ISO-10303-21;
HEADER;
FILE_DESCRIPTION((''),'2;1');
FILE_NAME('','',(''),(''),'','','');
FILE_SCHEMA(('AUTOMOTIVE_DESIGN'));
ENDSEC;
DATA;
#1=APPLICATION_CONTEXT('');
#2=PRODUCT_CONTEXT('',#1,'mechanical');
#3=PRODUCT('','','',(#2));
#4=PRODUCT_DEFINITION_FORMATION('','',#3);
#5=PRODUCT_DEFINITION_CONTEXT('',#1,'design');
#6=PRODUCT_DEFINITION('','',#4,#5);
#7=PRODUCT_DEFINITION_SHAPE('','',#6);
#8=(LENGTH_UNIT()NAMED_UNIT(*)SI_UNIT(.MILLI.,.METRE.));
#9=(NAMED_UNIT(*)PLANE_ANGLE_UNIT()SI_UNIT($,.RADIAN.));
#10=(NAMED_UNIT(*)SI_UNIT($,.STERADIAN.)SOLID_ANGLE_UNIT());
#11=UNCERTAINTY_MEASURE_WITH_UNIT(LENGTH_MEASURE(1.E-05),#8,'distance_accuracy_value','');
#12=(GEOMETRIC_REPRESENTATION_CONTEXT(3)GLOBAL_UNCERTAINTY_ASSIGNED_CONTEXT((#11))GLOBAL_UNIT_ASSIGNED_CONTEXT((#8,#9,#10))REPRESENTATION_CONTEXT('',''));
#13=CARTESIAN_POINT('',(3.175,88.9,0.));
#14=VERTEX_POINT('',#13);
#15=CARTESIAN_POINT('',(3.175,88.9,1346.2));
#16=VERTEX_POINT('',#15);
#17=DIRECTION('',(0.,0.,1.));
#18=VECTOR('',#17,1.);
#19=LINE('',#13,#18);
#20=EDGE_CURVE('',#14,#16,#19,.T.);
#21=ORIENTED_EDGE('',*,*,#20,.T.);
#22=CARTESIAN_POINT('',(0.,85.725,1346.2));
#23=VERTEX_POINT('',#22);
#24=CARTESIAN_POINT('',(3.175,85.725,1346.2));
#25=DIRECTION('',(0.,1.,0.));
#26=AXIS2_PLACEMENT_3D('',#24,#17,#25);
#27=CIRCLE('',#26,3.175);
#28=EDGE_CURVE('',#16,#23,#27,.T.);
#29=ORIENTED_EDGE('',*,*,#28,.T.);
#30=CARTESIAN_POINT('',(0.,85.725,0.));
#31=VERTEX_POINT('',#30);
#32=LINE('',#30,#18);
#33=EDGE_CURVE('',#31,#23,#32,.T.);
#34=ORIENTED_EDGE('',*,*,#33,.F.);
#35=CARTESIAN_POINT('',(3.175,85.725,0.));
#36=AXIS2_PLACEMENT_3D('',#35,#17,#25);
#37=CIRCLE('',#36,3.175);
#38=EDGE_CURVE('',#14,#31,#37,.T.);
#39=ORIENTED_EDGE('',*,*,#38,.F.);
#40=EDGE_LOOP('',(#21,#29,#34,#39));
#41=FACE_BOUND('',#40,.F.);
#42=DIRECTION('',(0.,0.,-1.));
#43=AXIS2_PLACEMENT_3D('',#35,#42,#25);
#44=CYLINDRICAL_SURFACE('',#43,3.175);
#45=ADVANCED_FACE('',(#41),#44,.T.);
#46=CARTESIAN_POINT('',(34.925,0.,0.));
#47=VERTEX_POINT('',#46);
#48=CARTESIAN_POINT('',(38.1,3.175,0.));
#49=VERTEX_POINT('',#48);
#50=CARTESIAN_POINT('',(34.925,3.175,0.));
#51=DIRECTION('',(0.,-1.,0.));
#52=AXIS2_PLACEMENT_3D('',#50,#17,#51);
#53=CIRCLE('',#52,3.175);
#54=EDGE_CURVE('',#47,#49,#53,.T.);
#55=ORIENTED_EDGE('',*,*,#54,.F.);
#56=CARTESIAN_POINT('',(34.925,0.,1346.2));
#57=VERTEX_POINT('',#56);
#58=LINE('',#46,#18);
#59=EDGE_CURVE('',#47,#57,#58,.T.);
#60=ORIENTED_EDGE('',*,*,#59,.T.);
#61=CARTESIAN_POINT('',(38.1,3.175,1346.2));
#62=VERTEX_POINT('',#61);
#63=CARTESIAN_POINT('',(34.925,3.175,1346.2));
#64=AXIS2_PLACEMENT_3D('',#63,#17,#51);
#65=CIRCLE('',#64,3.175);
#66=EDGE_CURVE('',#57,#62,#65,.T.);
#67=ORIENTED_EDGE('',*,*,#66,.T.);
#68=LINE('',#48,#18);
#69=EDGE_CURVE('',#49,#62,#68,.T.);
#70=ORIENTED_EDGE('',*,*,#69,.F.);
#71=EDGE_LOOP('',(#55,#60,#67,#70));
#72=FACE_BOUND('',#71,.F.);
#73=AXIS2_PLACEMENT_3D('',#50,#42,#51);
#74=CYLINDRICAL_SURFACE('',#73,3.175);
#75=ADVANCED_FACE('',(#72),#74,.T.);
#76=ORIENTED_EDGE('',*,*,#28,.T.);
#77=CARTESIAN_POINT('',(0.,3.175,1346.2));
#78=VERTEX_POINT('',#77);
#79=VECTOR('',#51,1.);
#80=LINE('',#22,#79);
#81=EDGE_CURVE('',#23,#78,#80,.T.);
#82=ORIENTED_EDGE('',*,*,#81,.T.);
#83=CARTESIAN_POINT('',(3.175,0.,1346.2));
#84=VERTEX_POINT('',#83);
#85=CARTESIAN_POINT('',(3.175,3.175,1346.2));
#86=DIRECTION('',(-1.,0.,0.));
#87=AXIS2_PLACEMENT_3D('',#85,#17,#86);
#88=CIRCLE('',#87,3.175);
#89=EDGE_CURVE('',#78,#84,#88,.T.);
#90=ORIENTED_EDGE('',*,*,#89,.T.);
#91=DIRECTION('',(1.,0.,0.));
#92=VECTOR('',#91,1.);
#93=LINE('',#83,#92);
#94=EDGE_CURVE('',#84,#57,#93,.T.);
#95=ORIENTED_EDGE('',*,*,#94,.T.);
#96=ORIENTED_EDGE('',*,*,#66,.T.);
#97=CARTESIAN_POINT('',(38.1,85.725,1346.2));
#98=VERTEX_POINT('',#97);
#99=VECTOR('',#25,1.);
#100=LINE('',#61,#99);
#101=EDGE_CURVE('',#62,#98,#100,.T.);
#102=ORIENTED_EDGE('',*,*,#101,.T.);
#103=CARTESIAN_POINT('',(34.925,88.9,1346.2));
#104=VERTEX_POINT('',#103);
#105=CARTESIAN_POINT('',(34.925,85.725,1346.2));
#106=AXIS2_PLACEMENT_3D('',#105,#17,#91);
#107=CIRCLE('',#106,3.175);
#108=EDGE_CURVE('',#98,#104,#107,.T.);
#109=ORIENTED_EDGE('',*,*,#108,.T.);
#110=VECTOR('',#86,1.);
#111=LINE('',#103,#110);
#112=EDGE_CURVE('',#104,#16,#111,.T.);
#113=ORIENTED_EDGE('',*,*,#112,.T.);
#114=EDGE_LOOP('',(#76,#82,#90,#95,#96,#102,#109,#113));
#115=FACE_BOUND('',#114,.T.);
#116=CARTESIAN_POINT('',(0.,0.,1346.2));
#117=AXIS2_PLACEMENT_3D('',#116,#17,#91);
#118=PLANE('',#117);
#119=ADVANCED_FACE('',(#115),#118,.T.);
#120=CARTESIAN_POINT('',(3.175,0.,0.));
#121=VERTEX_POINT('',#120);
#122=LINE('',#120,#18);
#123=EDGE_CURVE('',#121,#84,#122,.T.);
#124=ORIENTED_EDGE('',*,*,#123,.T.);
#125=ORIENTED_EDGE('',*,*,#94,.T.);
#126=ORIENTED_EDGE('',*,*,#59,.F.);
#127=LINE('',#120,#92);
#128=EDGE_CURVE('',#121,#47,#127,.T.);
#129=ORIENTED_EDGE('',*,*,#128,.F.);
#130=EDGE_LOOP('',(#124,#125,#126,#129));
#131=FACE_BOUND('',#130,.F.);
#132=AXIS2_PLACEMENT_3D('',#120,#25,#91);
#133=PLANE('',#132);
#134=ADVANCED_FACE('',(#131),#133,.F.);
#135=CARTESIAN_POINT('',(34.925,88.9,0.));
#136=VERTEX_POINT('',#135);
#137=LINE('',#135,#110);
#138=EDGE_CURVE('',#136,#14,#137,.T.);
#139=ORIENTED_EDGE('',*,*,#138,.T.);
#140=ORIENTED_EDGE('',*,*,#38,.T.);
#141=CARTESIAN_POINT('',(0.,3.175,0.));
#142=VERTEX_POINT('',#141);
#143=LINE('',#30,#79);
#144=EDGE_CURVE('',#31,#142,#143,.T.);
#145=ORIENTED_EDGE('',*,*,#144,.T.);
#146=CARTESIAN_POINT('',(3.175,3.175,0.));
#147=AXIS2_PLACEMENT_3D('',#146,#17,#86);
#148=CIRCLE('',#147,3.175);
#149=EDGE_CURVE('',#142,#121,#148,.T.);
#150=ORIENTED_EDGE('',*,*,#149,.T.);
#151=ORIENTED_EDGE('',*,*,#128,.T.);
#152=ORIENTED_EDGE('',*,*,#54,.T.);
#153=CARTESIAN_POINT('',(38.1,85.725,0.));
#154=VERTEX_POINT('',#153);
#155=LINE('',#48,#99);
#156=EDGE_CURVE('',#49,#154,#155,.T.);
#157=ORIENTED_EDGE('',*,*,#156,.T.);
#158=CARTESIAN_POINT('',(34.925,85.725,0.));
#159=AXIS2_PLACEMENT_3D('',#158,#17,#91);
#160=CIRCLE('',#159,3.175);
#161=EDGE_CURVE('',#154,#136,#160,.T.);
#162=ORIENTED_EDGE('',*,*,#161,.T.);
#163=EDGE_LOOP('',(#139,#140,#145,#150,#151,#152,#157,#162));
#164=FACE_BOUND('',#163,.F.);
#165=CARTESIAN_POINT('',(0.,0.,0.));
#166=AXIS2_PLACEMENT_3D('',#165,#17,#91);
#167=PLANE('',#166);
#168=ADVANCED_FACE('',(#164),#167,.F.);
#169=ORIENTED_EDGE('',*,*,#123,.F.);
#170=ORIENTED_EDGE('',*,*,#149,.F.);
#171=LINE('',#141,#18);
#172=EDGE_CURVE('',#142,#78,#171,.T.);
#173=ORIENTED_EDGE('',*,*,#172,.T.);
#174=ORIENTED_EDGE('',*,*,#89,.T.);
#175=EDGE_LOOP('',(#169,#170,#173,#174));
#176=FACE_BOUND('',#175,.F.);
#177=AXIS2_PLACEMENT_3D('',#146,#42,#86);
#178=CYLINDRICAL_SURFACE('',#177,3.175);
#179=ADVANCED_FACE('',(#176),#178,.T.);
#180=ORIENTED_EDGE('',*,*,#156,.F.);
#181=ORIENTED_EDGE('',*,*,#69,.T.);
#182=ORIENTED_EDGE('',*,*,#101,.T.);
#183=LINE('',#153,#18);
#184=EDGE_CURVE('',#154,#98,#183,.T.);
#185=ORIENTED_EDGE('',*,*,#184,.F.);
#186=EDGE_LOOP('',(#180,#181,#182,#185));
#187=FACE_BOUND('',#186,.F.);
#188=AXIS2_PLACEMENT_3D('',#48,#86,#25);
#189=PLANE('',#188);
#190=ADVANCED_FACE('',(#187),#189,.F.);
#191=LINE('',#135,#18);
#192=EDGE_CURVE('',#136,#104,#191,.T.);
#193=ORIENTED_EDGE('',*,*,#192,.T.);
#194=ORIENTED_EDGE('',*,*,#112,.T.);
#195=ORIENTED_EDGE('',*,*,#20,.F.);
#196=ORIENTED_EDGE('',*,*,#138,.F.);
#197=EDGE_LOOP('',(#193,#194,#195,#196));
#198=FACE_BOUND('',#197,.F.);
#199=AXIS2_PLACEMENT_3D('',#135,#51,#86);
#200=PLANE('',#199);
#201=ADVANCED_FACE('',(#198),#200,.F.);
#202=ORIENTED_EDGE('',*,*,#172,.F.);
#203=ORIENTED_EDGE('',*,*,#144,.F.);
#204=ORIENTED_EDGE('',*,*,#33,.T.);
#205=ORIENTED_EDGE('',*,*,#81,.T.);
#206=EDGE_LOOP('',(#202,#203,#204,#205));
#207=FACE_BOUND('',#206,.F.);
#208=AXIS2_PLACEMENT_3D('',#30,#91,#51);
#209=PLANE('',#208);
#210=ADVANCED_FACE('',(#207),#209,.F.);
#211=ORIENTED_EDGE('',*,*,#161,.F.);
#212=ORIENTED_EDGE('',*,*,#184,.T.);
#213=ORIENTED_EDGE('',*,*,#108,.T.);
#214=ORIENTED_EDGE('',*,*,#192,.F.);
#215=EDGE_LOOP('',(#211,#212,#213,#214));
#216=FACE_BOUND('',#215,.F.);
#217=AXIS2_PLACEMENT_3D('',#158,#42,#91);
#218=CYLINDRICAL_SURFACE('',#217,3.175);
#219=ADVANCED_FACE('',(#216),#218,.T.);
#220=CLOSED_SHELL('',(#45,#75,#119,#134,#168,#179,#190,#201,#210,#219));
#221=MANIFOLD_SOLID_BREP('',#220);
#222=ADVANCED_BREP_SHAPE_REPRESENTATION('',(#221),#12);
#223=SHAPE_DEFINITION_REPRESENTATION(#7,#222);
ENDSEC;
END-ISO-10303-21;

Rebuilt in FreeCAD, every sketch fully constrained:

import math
import FreeCAD as App
import Part
import Sketcher
from FreeCAD import Vector
Q = App.Units.Quantity

doc = App.newDocument("Part")
body = doc.addObject("PartDesign::Body", "Body")

# Sketch on XY plane
sketch1 = doc.addObject("Sketcher::SketchObject", "Sketch")
body.addObject(sketch1)
sketch1.AttachmentSupport = (doc.XY_Plane, [""])
sketch1.MapMode = "FlatFace"
sketch1.addGeometry([
    Part.ArcOfCircle(Part.Circle(Vector(3.2, 3.2, 0), Vector(0, 0, 1), 3.2), math.radians(180), math.radians(270)),  # 0
    Part.LineSegment(Vector(3.2, 0, 0), Vector(34.9, 0, 0)),  # 1
    Part.ArcOfCircle(Part.Circle(Vector(34.9, 3.2, 0), Vector(0, 0, 1), 3.2), math.radians(-90), math.radians(0)),  # 2
    Part.LineSegment(Vector(38.1, 3.2, 0), Vector(38.1, 85.7, 0)),  # 3
    Part.ArcOfCircle(Part.Circle(Vector(34.9, 85.7, 0), Vector(0, 0, 1), 3.2), math.radians(0), math.radians(90)),  # 4
    Part.LineSegment(Vector(34.9, 88.9, 0), Vector(3.2, 88.9, 0)),  # 5
    Part.ArcOfCircle(Part.Circle(Vector(3.2, 85.7, 0), Vector(0, 0, 1), 3.2), math.radians(90), math.radians(180)),  # 6
    Part.LineSegment(Vector(0, 85.7, 0), Vector(0, 3.2, 0)),  # 7
], False)
sketch1.addConstraint([
    Sketcher.Constraint("Tangent", 0, 2, 1, 1),
    Sketcher.Constraint("Tangent", 1, 2, 2, 1),
    Sketcher.Constraint("Tangent", 2, 2, 3, 1),
    Sketcher.Constraint("Tangent", 3, 2, 4, 1),
    Sketcher.Constraint("Tangent", 4, 2, 5, 1),
    Sketcher.Constraint("Tangent", 5, 2, 6, 1),
    Sketcher.Constraint("Tangent", 6, 2, 7, 1),
    Sketcher.Constraint("Tangent", 7, 2, 0, 1),
    Sketcher.Constraint("Horizontal", 1),
    Sketcher.Constraint("Vertical", 3),
    Sketcher.Constraint("Horizontal", 5),
    Sketcher.Constraint("Vertical", 7),
    Sketcher.Constraint("Equal", 0, 2),
    Sketcher.Constraint("Equal", 2, 4),
    Sketcher.Constraint("Equal", 4, 6),
    Sketcher.Constraint("PointOnObject", 0, 2, -1),
    Sketcher.Constraint("PointOnObject", 6, 2, -2),
    Sketcher.Constraint("Radius", 0, Q("0.125 in")),
    Sketcher.Constraint("DistanceX", -1, 1, 2, 2, Q("1.5 in")),
    Sketcher.Constraint("DistanceY", -1, 1, 4, 2, Q("3.5 in")),
])
pad1 = doc.addObject("PartDesign::Pad", "Pad")
body.addObject(pad1)
pad1.Profile = sketch1
pad1.Length = Q("53 in")

doc.recompute()
